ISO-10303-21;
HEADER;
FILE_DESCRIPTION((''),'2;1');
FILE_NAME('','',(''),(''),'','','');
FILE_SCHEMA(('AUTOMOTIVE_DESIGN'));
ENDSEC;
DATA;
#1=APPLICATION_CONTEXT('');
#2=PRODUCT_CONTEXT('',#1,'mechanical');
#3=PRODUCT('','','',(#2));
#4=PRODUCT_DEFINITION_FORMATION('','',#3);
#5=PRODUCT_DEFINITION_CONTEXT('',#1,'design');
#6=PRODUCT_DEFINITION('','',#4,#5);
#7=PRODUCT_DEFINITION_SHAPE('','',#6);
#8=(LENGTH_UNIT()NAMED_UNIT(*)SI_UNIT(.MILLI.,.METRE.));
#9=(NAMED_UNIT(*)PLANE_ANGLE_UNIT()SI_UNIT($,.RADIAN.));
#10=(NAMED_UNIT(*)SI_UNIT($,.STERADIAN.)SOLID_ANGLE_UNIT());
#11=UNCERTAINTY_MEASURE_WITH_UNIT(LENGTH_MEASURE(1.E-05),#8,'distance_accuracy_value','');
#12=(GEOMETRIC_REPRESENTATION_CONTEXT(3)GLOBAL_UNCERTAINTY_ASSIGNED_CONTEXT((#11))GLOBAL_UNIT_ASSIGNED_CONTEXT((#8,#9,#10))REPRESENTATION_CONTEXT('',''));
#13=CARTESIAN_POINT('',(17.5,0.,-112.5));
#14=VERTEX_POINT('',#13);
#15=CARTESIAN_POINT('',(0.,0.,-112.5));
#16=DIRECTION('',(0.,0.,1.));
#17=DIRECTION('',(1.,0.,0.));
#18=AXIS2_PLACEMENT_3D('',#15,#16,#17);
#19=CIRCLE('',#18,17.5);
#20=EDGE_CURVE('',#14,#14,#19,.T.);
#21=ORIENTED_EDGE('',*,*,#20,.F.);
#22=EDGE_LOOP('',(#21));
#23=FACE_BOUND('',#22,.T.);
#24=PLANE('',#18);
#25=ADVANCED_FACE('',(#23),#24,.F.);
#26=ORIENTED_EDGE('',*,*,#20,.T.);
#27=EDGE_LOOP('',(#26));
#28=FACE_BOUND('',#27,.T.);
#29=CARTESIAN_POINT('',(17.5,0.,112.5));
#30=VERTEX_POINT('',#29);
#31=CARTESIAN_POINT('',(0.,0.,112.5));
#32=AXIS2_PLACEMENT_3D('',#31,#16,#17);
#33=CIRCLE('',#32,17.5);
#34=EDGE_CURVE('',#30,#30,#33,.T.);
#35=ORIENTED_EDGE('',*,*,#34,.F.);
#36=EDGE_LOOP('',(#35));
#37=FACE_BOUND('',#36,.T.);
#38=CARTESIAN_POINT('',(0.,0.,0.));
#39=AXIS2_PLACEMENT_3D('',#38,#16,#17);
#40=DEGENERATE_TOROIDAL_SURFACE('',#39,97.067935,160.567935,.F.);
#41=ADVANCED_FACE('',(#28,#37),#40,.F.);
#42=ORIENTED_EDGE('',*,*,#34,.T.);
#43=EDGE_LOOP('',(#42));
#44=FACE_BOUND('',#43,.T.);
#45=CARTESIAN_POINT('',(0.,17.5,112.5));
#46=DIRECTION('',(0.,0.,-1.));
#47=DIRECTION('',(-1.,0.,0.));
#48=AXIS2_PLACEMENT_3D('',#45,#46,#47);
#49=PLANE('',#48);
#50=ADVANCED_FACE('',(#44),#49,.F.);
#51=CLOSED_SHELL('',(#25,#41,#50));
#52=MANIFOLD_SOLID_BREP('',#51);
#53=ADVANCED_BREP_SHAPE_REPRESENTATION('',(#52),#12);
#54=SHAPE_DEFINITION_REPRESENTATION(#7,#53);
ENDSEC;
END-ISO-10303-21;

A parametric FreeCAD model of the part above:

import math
import FreeCAD as App
import Part
import Sketcher

doc = App.newDocument("Part")
params = doc.addObject("Spreadsheet::Sheet", "Params")
for row, (alias, value) in enumerate([
    ("sketch1_height", "225 mm"),
    ("sketch1_width", "17.5 mm"),
    ("revolution_angle", "360 deg"),
], start=1):
    params.set(f"A{row}", alias)
    params.set(f"B{row}", "=" + value)
    params.setAlias(f"B{row}", alias)

body = doc.addObject("PartDesign::Body", "Body")

sketch1 = body.newObject("Sketcher::SketchObject", "Sketch")
sketch1.AttachmentSupport = (doc.getObject("YZ_Plane"), [""])
sketch1.MapMode = "FlatFace"
sketch1.addGeometry(Part.LineSegment(App.Vector(18, 112, 0), App.Vector(0, 112, 0)), False)
sketch1.addGeometry(Part.LineSegment(App.Vector(0, 112, 0), App.Vector(0, -112, 0)), False)
sketch1.addGeometry(Part.LineSegment(App.Vector(0, -112, 0), App.Vector(18, -112, 0)), False)
sketch1.addGeometry(Part.ArcOfCircle(Part.Circle(App.Vector(-97, 0, 0), App.Vector(0, 0, 1), 161), math.radians(-44), math.radians(44)), False)
sketch1.addConstraint(Sketcher.Constraint("Coincident", 0, 2, 1, 1))
sketch1.addConstraint(Sketcher.Constraint("Coincident", 1, 2, 2, 1))
sketch1.addConstraint(Sketcher.Constraint("Coincident", 2, 2, 3, 1))
sketch1.addConstraint(Sketcher.Constraint("Coincident", 3, 2, 0, 1))
sketch1.addConstraint(Sketcher.Constraint("Horizontal", 0))
sketch1.addConstraint(Sketcher.Constraint("Vertical", 1))
sketch1.addConstraint(Sketcher.Constraint("Horizontal", 2))
sketch1.addConstraint(Sketcher.Constraint("Symmetric", 0, 2, 1, 2, -1, 1))
sketch1.addConstraint(Sketcher.Constraint("PointOnObject", 3, 3, -1))
sketch1.addConstraint(Sketcher.Constraint("DistanceY", 1, 2, 1, 1, 225.0))
sketch1.addConstraint(Sketcher.Constraint("DistanceX", 0, 2, 0, 1, 17.5))
sketch1.addConstraint(Sketcher.Constraint("Radius", 3, 160.567935))
sketch1.setExpression("Constraints[9]", "Params.sketch1_height")
sketch1.setExpression("Constraints[10]", "Params.sketch1_width")
revolution = body.newObject("PartDesign::Revolution", "Revolution")
revolution.Profile = sketch1
revolution.ReferenceAxis = (sketch1, ["V_Axis"])
revolution.setExpression("Angle", "Params.revolution_angle")

doc.recompute()
